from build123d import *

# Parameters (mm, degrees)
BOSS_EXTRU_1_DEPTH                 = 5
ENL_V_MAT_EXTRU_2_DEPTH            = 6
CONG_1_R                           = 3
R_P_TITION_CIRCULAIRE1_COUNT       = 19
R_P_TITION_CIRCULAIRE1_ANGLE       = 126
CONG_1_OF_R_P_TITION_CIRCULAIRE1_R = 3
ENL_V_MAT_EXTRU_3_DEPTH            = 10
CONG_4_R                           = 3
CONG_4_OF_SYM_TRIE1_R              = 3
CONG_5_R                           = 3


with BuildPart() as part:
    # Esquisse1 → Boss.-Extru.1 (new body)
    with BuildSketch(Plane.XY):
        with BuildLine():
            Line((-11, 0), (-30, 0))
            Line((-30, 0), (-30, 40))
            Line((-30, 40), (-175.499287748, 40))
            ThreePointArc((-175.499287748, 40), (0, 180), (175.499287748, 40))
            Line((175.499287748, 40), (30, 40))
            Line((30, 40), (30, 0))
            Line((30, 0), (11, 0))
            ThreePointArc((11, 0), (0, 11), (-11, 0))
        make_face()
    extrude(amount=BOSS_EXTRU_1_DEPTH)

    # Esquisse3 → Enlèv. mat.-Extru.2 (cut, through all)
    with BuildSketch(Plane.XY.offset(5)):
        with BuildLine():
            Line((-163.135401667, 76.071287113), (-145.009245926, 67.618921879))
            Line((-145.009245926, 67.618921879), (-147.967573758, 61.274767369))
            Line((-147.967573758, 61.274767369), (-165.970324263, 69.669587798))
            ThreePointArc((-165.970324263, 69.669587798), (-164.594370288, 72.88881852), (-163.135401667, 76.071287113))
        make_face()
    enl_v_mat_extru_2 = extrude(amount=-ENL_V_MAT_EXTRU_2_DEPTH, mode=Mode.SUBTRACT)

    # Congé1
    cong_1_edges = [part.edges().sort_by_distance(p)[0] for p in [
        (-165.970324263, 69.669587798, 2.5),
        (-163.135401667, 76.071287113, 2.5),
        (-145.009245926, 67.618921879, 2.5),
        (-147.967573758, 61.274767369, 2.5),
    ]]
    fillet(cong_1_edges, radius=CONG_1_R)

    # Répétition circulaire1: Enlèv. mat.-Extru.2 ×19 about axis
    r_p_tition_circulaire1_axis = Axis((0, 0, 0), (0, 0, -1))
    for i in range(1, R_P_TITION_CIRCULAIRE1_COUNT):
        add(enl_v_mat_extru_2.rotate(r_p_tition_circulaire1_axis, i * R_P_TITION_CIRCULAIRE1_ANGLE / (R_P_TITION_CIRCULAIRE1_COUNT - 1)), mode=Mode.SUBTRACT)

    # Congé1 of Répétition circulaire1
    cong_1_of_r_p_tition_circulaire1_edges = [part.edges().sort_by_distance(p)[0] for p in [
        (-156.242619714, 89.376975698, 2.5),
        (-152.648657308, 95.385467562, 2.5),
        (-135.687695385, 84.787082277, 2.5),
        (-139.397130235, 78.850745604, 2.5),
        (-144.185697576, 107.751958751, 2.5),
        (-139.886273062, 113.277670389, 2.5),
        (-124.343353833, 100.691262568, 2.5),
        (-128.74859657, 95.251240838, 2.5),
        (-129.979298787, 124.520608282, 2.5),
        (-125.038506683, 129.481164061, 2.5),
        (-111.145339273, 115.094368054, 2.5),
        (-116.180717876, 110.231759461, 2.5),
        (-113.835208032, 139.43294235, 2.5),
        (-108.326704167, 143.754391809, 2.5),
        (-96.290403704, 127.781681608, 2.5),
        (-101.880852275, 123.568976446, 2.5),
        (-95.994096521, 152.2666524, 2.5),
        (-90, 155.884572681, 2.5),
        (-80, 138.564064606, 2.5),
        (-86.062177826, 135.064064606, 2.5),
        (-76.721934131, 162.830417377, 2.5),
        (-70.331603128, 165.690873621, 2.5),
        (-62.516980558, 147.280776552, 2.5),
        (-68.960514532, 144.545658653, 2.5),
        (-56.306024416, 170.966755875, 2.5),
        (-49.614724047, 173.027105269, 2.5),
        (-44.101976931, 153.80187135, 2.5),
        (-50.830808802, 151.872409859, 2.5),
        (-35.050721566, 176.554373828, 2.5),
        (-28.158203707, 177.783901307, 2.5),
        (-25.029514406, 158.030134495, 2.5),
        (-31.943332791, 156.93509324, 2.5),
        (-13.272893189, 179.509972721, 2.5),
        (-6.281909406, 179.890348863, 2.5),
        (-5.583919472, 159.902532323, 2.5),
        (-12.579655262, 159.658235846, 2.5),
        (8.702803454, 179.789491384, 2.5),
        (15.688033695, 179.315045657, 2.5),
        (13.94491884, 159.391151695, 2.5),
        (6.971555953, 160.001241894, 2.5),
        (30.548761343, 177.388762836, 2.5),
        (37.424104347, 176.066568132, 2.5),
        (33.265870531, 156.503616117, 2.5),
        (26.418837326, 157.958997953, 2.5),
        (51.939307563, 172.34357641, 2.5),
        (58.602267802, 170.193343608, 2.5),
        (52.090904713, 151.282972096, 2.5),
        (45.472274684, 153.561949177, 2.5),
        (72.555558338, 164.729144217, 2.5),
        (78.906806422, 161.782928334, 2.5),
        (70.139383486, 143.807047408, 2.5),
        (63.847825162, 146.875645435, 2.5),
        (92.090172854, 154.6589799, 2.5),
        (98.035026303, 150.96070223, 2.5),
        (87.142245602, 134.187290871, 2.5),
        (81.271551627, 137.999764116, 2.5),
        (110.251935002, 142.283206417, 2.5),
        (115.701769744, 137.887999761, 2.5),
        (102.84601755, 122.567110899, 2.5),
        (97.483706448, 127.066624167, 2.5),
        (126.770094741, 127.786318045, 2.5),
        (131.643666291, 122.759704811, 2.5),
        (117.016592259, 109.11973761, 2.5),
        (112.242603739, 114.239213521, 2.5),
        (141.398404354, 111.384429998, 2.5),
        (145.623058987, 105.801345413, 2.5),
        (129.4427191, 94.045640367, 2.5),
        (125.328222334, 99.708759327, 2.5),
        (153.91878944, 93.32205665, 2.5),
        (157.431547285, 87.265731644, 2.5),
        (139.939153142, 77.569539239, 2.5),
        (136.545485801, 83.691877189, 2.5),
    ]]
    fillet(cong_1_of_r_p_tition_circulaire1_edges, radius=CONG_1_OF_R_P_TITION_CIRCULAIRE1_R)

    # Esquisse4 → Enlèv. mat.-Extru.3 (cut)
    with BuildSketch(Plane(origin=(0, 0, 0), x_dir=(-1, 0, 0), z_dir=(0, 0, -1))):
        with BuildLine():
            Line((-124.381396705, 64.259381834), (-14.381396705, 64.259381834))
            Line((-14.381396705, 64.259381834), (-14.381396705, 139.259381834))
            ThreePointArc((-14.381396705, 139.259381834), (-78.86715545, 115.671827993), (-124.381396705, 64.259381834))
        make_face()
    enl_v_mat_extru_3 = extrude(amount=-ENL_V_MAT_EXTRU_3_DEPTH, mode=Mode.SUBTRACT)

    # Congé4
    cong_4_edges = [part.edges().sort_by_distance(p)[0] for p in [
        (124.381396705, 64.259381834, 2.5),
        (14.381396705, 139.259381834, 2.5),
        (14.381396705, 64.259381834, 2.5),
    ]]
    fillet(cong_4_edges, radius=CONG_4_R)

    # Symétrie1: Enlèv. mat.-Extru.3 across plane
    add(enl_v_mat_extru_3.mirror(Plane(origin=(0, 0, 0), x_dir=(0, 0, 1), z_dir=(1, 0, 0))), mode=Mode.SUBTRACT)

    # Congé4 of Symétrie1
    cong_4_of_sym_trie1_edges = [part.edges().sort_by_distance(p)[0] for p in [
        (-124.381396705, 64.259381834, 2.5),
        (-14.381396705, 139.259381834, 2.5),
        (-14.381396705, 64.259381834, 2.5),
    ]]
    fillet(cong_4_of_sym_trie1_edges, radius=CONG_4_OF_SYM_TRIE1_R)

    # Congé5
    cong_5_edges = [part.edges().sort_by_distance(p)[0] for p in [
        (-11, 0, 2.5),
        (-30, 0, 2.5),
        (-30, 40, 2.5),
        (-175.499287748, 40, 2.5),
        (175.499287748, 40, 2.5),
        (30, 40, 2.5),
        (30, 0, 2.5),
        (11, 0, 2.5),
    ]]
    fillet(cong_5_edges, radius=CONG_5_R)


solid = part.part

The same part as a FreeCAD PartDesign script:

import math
import FreeCAD as App
import Part
import Sketcher
Q = App.Units.Quantity


def edges_at(feature, points):
    """Names of the edges that pass closest to the given points."""
    edges = feature.Shape.Edges
    near = lambda p: min(range(len(edges)), key=lambda i: edges[i].distToShape(Part.Vertex(*p))[0])
    return sorted({f"Edge{near(p) + 1}" for p in points})

doc = App.newDocument("Part")
body = doc.addObject("PartDesign::Body", "Body")

# Sketch on XY plane
sketch1 = body.newObject("Sketcher::SketchObject", "Sketch")
sketch1.AttachmentSupport = (doc.getObject("XY_Plane"), [""])
sketch1.MapMode = "FlatFace"
sketch1.addGeometry(Part.LineSegment(App.Vector(-30, 0, 0), App.Vector(-11, 0, 0)), False)
sketch1.addGeometry(Part.ArcOfCircle(Part.Circle(App.Vector(0, 0, 0), App.Vector(0, 0, 1), 11), math.radians(0), math.radians(180)), False)
sketch1.addGeometry(Part.LineSegment(App.Vector(11, 0, 0), App.Vector(30, 0, 0)), False)
sketch1.addGeometry(Part.LineSegment(App.Vector(30, 0, 0), App.Vector(30, 40, 0)), False)
sketch1.addGeometry(Part.LineSegment(App.Vector(30, 40, 0), App.Vector(175, 40, 0)), False)
sketch1.addGeometry(Part.ArcOfCircle(Part.Circle(App.Vector(0, 0, 0), App.Vector(0, 0, 1), 180), math.radians(13), math.radians(167)), False)
sketch1.addGeometry(Part.LineSegment(App.Vector(-175, 40, 0), App.Vector(-30, 40, 0)), False)
sketch1.addGeometry(Part.LineSegment(App.Vector(-30, 40, 0), App.Vector(-30, 0, 0)), False)
sketch1.addConstraint(Sketcher.Constraint("Coincident", 0, 2, 1, 2))
sketch1.addConstraint(Sketcher.Constraint("Coincident", 1, 1, 2, 1))
sketch1.addConstraint(Sketcher.Constraint("Coincident", 2, 2, 3, 1))
sketch1.addConstraint(Sketcher.Constraint("Coincident", 3, 2, 4, 1))
sketch1.addConstraint(Sketcher.Constraint("Coincident", 4, 2, 5, 1))
sketch1.addConstraint(Sketcher.Constraint("Coincident", 5, 2, 6, 1))
sketch1.addConstraint(Sketcher.Constraint("Coincident", 6, 2, 7, 1))
sketch1.addConstraint(Sketcher.Constraint("Coincident", 7, 2, 0, 1))
sketch1.addConstraint(Sketcher.Constraint("Horizontal", 0))
sketch1.addConstraint(Sketcher.Constraint("Horizontal", 2))
sketch1.addConstraint(Sketcher.Constraint("Vertical", 3))
sketch1.addConstraint(Sketcher.Constraint("Horizontal", 4))
sketch1.addConstraint(Sketcher.Constraint("Horizontal", 6))
sketch1.addConstraint(Sketcher.Constraint("Vertical", 7))
sketch1.addConstraint(Sketcher.Constraint("Coincident", 1, 3, -1, 1))
sketch1.addConstraint(Sketcher.Constraint("Coincident", 5, 3, -1, 1))
sketch1.addConstraint(Sketcher.Constraint("Symmetric", 2, 2, 7, 2, -1, 1))
sketch1.addConstraint(Sketcher.Constraint("PointOnObject", 0, 2, -1))
sketch1.addConstraint(Sketcher.Constraint("Horizontal", 4, 2, 5, 2))
sketch1.addConstraint(Sketcher.Constraint("Radius", 1, 11.0))
sketch1.addConstraint(Sketcher.Constraint("Radius", 5, 180.0))
sketch1.addConstraint(Sketcher.Constraint("DistanceX", 0, 1, 0, 2, 19.0))
sketch1.addConstraint(Sketcher.Constraint("DistanceY", 3, 1, 3, 2, 40.0))
pad1 = body.newObject("PartDesign::Pad", "Pad")
pad1.Profile = sketch1
pad1.Length = 5

# Sketch on XY plane
sketch2 = body.newObject("Sketcher::SketchObject", "Sketch001")
sketch2.AttachmentSupport = (doc.getObject("XY_Plane"), [""])
sketch2.MapMode = "FlatFace"
sketch2.AttachmentOffset = App.Placement(App.Vector(0, 0, 5), App.Rotation())
sketch2.addGeometry(Part.LineSegment(App.Vector(-145, 68, 0), App.Vector(-163, 76, 0)), False)
sketch2.addGeometry(Part.ArcOfCircle(Part.Circle(App.Vector(-41, 18, 0), App.Vector(0, 0, 1), 135), math.radians(154.63), math.radians(157.6)), False)
sketch2.addGeometry(Part.LineSegment(App.Vector(-166, 70, 0), App.Vector(-148, 61, 0)), False)
sketch2.addGeometry(Part.LineSegment(App.Vector(-148, 61, 0), App.Vector(-145, 68, 0)), False)
sketch2.addConstraint(Sketcher.Constraint("Coincident", 0, 2, 1, 1))
sketch2.addConstraint(Sketcher.Constraint("Coincident", 1, 2, 2, 1))
sketch2.addConstraint(Sketcher.Constraint("Coincident", 2, 2, 3, 1))
sketch2.addConstraint(Sketcher.Constraint("Coincident", 3, 2, 0, 1))
sketch2.addConstraint(Sketcher.Constraint("Parallel", 0, 2))
sketch2.addConstraint(Sketcher.Constraint("Perpendicular", 2, 3))
sketch2.addConstraint(Sketcher.Constraint("Radius", 1, 135.000001))
sketch2.addConstraint(Sketcher.Constraint("Angle", 0, Q("155 deg")))
sketch2.addConstraint(Sketcher.Constraint("Distance", 0, 20.0))
sketch2.addConstraint(Sketcher.Constraint("Distance", 3, 7.0))
sketch2.addConstraint(Sketcher.Constraint("DistanceX", 0, 2, -1, 1, 163.135402))
sketch2.addConstraint(Sketcher.Constraint("DistanceY", -1, 1, 1, 3, 18.225652))
sketch2.addConstraint(Sketcher.Constraint("DistanceY", -1, 1, 3, 2, 67.618922))
pocket1 = body.newObject("PartDesign::Pocket", "Pocket")
pocket1.Profile = sketch2
pocket1.Type = "ThroughAll"
doc.recompute()

fillet = body.newObject("PartDesign::Fillet", "Fillet")
fillet.Base = (pocket1, edges_at(pocket1, [
    (-165.97, 69.67, 2.5),
    (-163.135, 76.071, 2.5),
    (-145.009, 67.619, 2.5),
    (-147.968, 61.275, 2.5),
]))
fillet.Radius = 3
doc.recompute()

polarpattern = body.newObject("PartDesign::PolarPattern", "PolarPattern")
polarpattern.Originals = [pocket1]
polarpattern.Axis = (doc.getObject("Z_Axis"), [""])
polarpattern.Angle = 126
polarpattern.Occurrences = 19
polarpattern.Reversed = True
body.Tip = polarpattern
doc.recompute()

fillet2 = body.newObject("PartDesign::Fillet", "Fillet001")
fillet2.Base = (polarpattern, edges_at(polarpattern, [
    (-156.243, 89.377, 2.5),
    (-152.649, 95.385, 2.5),
    (-135.688, 84.787, 2.5),
    (-139.397, 78.851, 2.5),
    (-144.186, 107.752, 2.5),
    (-139.886, 113.278, 2.5),
    (-124.343, 100.691, 2.5),
    (-128.749, 95.251, 2.5),
    (-129.979, 124.521, 2.5),
    (-125.039, 129.481, 2.5),
    (-111.145, 115.094, 2.5),
    (-116.181, 110.232, 2.5),
    (-113.835, 139.433, 2.5),
    (-108.327, 143.754, 2.5),
    (-96.29, 127.782, 2.5),
    (-101.881, 123.569, 2.5),
    (-95.994, 152.267, 2.5),
    (-90, 155.885, 2.5),
    (-80, 138.564, 2.5),
    (-86.062, 135.064, 2.5),
    (-76.722, 162.83, 2.5),
    (-70.332, 165.691, 2.5),
    (-62.517, 147.281, 2.5),
    (-68.961, 144.546, 2.5),
    (-56.306, 170.967, 2.5),
    (-49.615, 173.027, 2.5),
    (-44.102, 153.802, 2.5),
    (-50.831, 151.872, 2.5),
    (-35.051, 176.554, 2.5),
    (-28.158, 177.784, 2.5),
    (-25.03, 158.03, 2.5),
    (-31.943, 156.935, 2.5),
    (-13.273, 179.51, 2.5),
    (-6.282, 179.89, 2.5),
    (-5.584, 159.903, 2.5),
    (-12.58, 159.658, 2.5),
    (8.703, 179.789, 2.5),
    (15.688, 179.315, 2.5),
    (13.945, 159.391, 2.5),
    (6.972, 160.001, 2.5),
    (30.549, 177.389, 2.5),
    (37.424, 176.067, 2.5),
    (33.266, 156.504, 2.5),
    (26.419, 157.959, 2.5),
    (51.939, 172.344, 2.5),
    (58.602, 170.193, 2.5),
    (52.091, 151.283, 2.5),
    (45.472, 153.562, 2.5),
    (72.556, 164.729, 2.5),
    (78.907, 161.783, 2.5),
    (70.139, 143.807, 2.5),
    (63.848, 146.876, 2.5),
    (92.09, 154.659, 2.5),
    (98.035, 150.961, 2.5),
    (87.142, 134.187, 2.5),
    (81.272, 138, 2.5),
    (110.252, 142.283, 2.5),
    (115.702, 137.888, 2.5),
    (102.846, 122.567, 2.5),
    (97.484, 127.067, 2.5),
    (126.77, 127.786, 2.5),
    (131.644, 122.76, 2.5),
    (117.017, 109.12, 2.5),
    (112.243, 114.239, 2.5),
    (141.398, 111.384, 2.5),
    (145.623, 105.801, 2.5),
    (129.443, 94.046, 2.5),
    (125.328, 99.709, 2.5),
    (153.919, 93.322, 2.5),
    (157.432, 87.266, 2.5),
    (139.939, 77.57, 2.5),
    (136.545, 83.692, 2.5),
]))
fillet2.Radius = 3

# Sketch on XY plane
sketch3 = body.newObject("Sketcher::SketchObject", "Sketch002")
sketch3.AttachmentSupport = (doc.getObject("XY_Plane"), [""])
sketch3.MapMode = "FlatFace"
sketch3.addGeometry(Part.LineSegment(App.Vector(124, 64, 0), App.Vector(14, 64, 0)), False)
sketch3.addGeometry(Part.LineSegment(App.Vector(14, 64, 0), App.Vector(14, 139, 0)), False)
sketch3.addGeometry(Part.ArcOfCircle(Part.Circle(App.Vector(0, 0, 0), App.Vector(0, 0, 1), 140), math.radians(27), math.radians(84)), False)
sketch3.addConstraint(Sketcher.Constraint("Coincident", 0, 2, 1, 1))
sketch3.addConstraint(Sketcher.Constraint("Coincident", 1, 2, 2, 2))
sketch3.addConstraint(Sketcher.Constraint("Coincident", 2, 1, 0, 1))
sketch3.addConstraint(Sketcher.Constraint("Horizontal", 0))
sketch3.addConstraint(Sketcher.Constraint("Vertical", 1))
sketch3.addConstraint(Sketcher.Constraint("Coincident", 2, 3, -1, 1))
sketch3.addConstraint(Sketcher.Constraint("Radius", 2, 140.0))
sketch3.addConstraint(Sketcher.Constraint("DistanceX", 0, 2, 0, 1, 110.0))
sketch3.addConstraint(Sketcher.Constraint("DistanceY", 1, 1, 1, 2, 75.0))
pocket2 = body.newObject("PartDesign::Pocket", "Pocket001")
pocket2.Profile = sketch3
pocket2.Length = 10
pocket2.Reversed = True
doc.recompute()

fillet3 = body.newObject("PartDesign::Fillet", "Fillet002")
fillet3.Base = (pocket2, edges_at(pocket2, [(124.381, 64.259, 2.5), (14.381, 139.259, 2.5), (14.381, 64.259, 2.5)]))
fillet3.Radius = 3
doc.recompute()

mirrored = body.newObject("PartDesign::Mirrored", "Mirrored")
mirrored.Originals = [pocket2]
mirrored.MirrorPlane = (doc.getObject("YZ_Plane"), [""])
body.Tip = mirrored
doc.recompute()

fillet4 = body.newObject("PartDesign::Fillet", "Fillet003")
fillet4.Base = (mirrored, edges_at(mirrored, [(-124.381, 64.259, 2.5), (-14.381, 139.259, 2.5), (-14.381, 64.259, 2.5)]))
fillet4.Radius = 3
doc.recompute()

fillet5 = body.newObject("PartDesign::Fillet", "Fillet004")
fillet5.Base = (fillet4, edges_at(fillet4, [
    (-11, 0, 2.5),
    (-30, 0, 2.5),
    (-30, 40, 2.5),
    (-175.499, 40, 2.5),
    (175.499, 40, 2.5),
    (30, 40, 2.5),
    (30, 0, 2.5),
    (11, 0, 2.5),
]))
fillet5.Radius = 3

doc.recompute()
